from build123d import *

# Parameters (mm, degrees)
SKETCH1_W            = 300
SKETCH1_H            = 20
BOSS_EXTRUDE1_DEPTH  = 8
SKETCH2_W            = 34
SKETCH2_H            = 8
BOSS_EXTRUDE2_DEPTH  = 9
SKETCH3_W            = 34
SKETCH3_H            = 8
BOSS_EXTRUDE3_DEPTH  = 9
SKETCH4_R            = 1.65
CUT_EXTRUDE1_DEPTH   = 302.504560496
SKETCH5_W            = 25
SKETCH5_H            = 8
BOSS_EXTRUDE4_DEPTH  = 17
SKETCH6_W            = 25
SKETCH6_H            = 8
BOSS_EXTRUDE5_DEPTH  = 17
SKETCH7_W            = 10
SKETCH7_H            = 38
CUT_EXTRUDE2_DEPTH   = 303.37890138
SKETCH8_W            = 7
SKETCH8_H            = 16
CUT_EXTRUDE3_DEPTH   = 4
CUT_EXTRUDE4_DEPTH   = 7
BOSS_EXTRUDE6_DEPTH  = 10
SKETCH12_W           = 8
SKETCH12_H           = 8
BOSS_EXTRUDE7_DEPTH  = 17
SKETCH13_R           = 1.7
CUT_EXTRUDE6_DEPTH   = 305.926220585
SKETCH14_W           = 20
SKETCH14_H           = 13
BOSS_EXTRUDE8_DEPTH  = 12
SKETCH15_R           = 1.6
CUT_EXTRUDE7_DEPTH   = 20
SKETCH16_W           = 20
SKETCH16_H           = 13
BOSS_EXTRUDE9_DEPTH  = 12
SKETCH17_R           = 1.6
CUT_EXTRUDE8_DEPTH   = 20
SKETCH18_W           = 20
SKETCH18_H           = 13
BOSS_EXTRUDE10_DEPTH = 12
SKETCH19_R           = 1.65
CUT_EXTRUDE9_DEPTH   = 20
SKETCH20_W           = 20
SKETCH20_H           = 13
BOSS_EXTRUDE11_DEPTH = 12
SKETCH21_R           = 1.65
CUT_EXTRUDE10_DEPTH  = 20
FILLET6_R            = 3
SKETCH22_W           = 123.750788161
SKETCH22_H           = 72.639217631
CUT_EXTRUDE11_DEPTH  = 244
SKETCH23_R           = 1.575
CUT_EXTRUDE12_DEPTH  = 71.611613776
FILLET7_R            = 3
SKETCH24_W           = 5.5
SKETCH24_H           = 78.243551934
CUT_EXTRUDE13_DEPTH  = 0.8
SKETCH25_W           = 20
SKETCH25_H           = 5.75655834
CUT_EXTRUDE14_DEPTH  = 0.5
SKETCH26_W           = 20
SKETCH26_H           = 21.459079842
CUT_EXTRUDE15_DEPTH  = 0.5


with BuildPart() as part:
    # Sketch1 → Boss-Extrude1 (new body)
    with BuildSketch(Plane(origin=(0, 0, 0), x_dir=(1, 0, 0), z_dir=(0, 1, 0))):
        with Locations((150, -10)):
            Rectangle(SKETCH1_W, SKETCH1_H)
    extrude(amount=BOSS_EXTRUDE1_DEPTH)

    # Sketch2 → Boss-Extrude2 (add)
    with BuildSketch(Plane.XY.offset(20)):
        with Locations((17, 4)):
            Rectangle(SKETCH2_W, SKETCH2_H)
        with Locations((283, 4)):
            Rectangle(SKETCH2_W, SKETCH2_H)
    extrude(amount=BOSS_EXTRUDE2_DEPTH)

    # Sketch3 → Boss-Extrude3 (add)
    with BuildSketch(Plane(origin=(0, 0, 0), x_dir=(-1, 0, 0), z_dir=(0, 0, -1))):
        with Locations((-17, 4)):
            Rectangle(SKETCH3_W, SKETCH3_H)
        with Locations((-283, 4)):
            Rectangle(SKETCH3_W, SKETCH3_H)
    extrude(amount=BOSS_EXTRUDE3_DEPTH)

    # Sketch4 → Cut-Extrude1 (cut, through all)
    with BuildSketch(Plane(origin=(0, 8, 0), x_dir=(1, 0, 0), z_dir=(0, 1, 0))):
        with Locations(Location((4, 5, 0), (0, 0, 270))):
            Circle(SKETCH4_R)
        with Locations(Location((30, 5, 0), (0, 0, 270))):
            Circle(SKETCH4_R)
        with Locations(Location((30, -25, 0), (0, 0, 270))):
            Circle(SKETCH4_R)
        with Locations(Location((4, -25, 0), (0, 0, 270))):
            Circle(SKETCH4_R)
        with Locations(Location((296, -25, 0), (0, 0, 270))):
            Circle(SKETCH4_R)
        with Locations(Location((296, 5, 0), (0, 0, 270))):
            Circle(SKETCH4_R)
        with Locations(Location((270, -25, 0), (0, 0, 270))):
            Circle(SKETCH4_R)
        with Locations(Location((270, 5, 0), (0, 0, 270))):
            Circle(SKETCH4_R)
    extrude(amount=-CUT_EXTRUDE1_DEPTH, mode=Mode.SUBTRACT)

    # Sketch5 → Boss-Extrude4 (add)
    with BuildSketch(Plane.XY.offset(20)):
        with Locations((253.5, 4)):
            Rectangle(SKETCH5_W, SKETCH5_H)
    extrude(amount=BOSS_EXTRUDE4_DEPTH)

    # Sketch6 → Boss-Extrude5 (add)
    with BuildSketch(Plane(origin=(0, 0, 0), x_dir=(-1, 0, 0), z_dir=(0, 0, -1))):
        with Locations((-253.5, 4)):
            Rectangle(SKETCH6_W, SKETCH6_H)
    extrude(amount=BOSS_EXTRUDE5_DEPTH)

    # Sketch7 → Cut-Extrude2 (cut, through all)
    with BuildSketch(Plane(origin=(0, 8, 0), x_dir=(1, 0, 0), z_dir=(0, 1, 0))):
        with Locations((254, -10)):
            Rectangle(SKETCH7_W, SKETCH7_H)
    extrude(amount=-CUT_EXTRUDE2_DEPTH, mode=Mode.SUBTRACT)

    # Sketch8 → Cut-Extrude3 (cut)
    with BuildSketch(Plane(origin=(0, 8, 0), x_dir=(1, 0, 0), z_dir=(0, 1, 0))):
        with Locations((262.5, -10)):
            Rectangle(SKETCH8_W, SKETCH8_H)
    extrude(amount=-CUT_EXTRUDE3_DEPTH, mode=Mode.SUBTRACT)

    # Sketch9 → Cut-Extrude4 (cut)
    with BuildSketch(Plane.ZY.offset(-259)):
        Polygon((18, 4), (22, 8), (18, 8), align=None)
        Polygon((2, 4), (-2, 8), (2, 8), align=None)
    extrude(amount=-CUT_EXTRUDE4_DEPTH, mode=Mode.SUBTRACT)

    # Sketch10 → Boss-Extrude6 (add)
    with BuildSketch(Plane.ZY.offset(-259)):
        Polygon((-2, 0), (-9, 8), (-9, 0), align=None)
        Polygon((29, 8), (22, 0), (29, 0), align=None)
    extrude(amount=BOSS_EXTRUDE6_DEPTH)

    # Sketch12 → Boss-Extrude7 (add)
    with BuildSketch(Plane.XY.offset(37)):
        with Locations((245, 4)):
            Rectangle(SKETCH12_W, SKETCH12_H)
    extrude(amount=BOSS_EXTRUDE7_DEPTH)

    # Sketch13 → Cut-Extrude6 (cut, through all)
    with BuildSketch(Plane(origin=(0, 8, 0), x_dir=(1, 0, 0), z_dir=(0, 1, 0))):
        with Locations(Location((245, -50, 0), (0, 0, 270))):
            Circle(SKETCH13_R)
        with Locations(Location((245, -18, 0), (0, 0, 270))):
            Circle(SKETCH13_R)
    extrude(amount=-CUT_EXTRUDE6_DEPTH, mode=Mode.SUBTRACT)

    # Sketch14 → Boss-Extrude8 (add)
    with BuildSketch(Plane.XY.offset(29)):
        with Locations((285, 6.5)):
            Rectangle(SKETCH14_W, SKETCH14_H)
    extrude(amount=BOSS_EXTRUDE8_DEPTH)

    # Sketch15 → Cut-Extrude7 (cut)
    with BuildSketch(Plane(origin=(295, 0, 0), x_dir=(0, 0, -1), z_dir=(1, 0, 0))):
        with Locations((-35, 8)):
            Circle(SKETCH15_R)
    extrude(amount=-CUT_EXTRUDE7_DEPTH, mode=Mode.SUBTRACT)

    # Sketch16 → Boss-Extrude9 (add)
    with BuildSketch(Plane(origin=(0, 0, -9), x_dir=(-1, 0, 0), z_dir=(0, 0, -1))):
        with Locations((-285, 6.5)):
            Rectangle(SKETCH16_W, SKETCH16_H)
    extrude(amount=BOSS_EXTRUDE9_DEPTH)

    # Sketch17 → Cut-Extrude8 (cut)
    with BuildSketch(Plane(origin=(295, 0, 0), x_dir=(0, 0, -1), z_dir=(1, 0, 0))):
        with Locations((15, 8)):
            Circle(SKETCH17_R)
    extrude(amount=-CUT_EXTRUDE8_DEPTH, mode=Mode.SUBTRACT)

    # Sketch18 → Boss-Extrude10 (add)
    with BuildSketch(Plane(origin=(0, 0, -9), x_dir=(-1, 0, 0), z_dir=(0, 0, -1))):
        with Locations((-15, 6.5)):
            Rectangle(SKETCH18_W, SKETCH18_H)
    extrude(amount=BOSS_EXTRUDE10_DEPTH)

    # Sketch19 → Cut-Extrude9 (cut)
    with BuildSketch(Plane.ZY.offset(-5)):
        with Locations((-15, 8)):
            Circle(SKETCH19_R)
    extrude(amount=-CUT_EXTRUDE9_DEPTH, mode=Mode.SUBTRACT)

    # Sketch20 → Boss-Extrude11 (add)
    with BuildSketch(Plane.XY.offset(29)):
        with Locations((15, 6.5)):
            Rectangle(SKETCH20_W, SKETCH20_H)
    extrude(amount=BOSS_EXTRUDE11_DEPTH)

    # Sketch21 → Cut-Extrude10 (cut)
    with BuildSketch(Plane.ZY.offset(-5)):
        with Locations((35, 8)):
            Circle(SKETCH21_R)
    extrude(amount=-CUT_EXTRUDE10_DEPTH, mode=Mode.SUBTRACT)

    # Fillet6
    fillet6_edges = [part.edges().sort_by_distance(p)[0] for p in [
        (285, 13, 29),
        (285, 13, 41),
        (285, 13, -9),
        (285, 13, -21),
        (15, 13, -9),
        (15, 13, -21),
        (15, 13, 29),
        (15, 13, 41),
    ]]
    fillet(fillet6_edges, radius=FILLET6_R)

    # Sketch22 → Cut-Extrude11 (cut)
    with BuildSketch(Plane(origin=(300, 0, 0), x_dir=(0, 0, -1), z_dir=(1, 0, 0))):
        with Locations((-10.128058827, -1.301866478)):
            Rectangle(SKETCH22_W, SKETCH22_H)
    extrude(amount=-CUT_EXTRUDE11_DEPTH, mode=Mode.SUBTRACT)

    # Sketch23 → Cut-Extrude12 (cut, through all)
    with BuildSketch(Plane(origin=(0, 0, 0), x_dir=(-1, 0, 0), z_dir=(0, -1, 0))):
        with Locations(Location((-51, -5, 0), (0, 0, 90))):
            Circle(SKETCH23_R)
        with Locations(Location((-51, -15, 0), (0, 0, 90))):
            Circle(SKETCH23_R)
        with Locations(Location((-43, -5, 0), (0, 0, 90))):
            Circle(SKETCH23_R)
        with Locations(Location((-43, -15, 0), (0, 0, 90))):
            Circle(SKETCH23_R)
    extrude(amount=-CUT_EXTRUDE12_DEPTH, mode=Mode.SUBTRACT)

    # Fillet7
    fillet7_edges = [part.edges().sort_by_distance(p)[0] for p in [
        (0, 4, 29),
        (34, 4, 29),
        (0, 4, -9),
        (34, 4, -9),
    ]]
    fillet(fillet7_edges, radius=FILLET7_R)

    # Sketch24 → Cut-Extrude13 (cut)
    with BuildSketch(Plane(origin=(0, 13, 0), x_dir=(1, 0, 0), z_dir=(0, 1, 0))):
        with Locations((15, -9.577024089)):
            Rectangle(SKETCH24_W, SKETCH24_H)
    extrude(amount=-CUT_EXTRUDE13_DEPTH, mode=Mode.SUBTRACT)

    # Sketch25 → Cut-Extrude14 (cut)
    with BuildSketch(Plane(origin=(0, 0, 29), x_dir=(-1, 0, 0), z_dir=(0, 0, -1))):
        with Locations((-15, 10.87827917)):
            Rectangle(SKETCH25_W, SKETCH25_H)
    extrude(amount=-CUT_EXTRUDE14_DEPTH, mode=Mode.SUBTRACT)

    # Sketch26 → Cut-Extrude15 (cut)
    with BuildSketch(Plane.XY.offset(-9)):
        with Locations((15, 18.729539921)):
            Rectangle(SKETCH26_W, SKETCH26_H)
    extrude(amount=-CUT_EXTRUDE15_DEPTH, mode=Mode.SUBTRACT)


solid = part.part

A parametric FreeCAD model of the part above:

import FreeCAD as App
import Part
import Sketcher
Q = App.Units.Quantity


def edges_at(feature, points):
    """Names of the edges that pass closest to the given points."""
    edges = feature.Shape.Edges
    near = lambda p: min(range(len(edges)), key=lambda i: edges[i].distToShape(Part.Vertex(*p))[0])
    return sorted({f"Edge{near(p) + 1}" for p in points})


def add_polygon(sketch, points):
    """Adds a closed chain of lines whose ends are joined by coincident constraints."""
    first, n = sketch.GeometryCount, len(points)
    for a, b in zip(points, points[1:] + points[:1]):
        sketch.addGeometry(Part.LineSegment(App.Vector(*a, 0), App.Vector(*b, 0)), False)
    for i in range(n):
        sketch.addConstraint(Sketcher.Constraint("Coincident", first + i, 2, first + (i + 1) % n, 1))

doc = App.newDocument("Part")
body = doc.addObject("PartDesign::Body", "Body")

# Sketch on XZ plane
sketch1 = body.newObject("Sketcher::SketchObject", "Sketch")
sketch1.AttachmentSupport = (doc.getObject("XZ_Plane"), [""])
sketch1.MapMode = "FlatFace"
add_polygon(sketch1, [(0, 0), (0, 20), (300, 20), (300, 0)])  # lines 0-3
sketch1.addConstraint(Sketcher.Constraint("Vertical", 0))
sketch1.addConstraint(Sketcher.Constraint("Horizontal", 1))
sketch1.addConstraint(Sketcher.Constraint("Vertical", 2))
sketch1.addConstraint(Sketcher.Constraint("Horizontal", 3))
sketch1.addConstraint(Sketcher.Constraint("Coincident", 3, 2, -1, 1))
sketch1.addConstraint(Sketcher.Constraint("DistanceX", 1, 1, 1, 2, Q("300 mm")))
sketch1.addConstraint(Sketcher.Constraint("DistanceY", 0, 1, 0, 2, Q("20 mm")))
pad1 = body.newObject("PartDesign::Pad", "Pad")
pad1.Profile = sketch1
pad1.Length = 8
pad1.Reversed = True

# Sketch on XY plane
sketch2 = body.newObject("Sketcher::SketchObject", "Sketch001")
sketch2.AttachmentSupport = (doc.getObject("XY_Plane"), [""])
sketch2.MapMode = "FlatFace"
sketch2.AttachmentOffset = App.Placement(App.Vector(0, 0, 20), App.Rotation())
add_polygon(sketch2, [(0, 8), (0, 0), (34, 0), (34, 8)])  # lines 0-3
add_polygon(sketch2, [(266, 8), (266, 0), (300, 0), (300, 8)])  # lines 4-7
sketch2.addConstraint(Sketcher.Constraint("Vertical", 0))
sketch2.addConstraint(Sketcher.Constraint("Horizontal", 1))
sketch2.addConstraint(Sketcher.Constraint("Vertical", 2))
sketch2.addConstraint(Sketcher.Constraint("Horizontal", 3))
sketch2.addConstraint(Sketcher.Constraint("Vertical", 4))
sketch2.addConstraint(Sketcher.Constraint("Horizontal", 5))
sketch2.addConstraint(Sketcher.Constraint("Vertical", 6))
sketch2.addConstraint(Sketcher.Constraint("Horizontal", 7))
sketch2.addConstraint(Sketcher.Constraint("Coincident", 0, 2, -1, 1))
sketch2.addConstraint(Sketcher.Constraint("PointOnObject", 4, 2, -1))
sketch2.addConstraint(Sketcher.Constraint("Horizontal", 3, 2, 6, 2))
sketch2.addConstraint(Sketcher.Constraint("Equal", 3, 5))
sketch2.addConstraint(Sketcher.Constraint("DistanceX", 1, 1, 1, 2, Q("34 mm")))
sketch2.addConstraint(Sketcher.Constraint("DistanceY", 0, 2, 0, 1, Q("8 mm")))
sketch2.addConstraint(Sketcher.Constraint("DistanceX", -1, 1, 4, 2, Q("266 mm")))
pad2 = body.newObject("PartDesign::Pad", "Pad001")
pad2.Profile = sketch2
pad2.Length = 9

# Sketch on XY plane
sketch3 = body.newObject("Sketcher::SketchObject", "Sketch002")
sketch3.AttachmentSupport = (doc.getObject("XY_Plane"), [""])
sketch3.MapMode = "FlatFace"
add_polygon(sketch3, [(34, 8), (34, 0), (0, 0), (0, 8)])  # lines 0-3
add_polygon(sketch3, [(300, 8), (300, 0), (266, 0), (266, 8)])  # lines 4-7
sketch3.addConstraint(Sketcher.Constraint("Vertical", 0))
sketch3.addConstraint(Sketcher.Constraint("Horizontal", 1))
sketch3.addConstraint(Sketcher.Constraint("Vertical", 2))
sketch3.addConstraint(Sketcher.Constraint("Horizontal", 3))
sketch3.addConstraint(Sketcher.Constraint("Vertical", 4))
sketch3.addConstraint(Sketcher.Constraint("Horizontal", 5))
sketch3.addConstraint(Sketcher.Constraint("Vertical", 6))
sketch3.addConstraint(Sketcher.Constraint("Horizontal", 7))
sketch3.addConstraint(Sketcher.Constraint("Coincident", 1, 2, -1, 1))
sketch3.addConstraint(Sketcher.Constraint("PointOnObject", 4, 2, -1))
sketch3.addConstraint(Sketcher.Constraint("Horizontal", 3, 2, 6, 2))
sketch3.addConstraint(Sketcher.Constraint("Equal", 3, 5))
sketch3.addConstraint(Sketcher.Constraint("DistanceX", 1, 2, 1, 1, Q("34 mm")))
sketch3.addConstraint(Sketcher.Constraint("DistanceY", 0, 2, 0, 1, Q("8 mm")))
sketch3.addConstraint(Sketcher.Constraint("DistanceX", -1, 1, 4, 2, Q("300 mm")))
pad3 = body.newObject("PartDesign::Pad", "Pad002")
pad3.Profile = sketch3
pad3.Length = 9
pad3.Reversed = True

# Sketch on XZ plane
sketch4 = body.newObject("Sketcher::SketchObject", "Sketch003")
sketch4.AttachmentSupport = (doc.getObject("XZ_Plane"), [""])
sketch4.MapMode = "FlatFace"
sketch4.AttachmentOffset = App.Placement(App.Vector(0, 0, -8), App.Rotation())
sketch4.addGeometry(Part.Circle(App.Vector(4, -5, 0), App.Vector(0, 0, 1), 1.6), False)
sketch4.addGeometry(Part.Circle(App.Vector(30, -5, 0), App.Vector(0, 0, 1), 1.6), False)
sketch4.addGeometry(Part.Circle(App.Vector(30, 25, 0), App.Vector(0, 0, 1), 1.6), False)
sketch4.addGeometry(Part.Circle(App.Vector(4, 25, 0), App.Vector(0, 0, 1), 1.6), False)
sketch4.addGeometry(Part.Circle(App.Vector(296, 25, 0), App.Vector(0, 0, 1), 1.6), False)
sketch4.addGeometry(Part.Circle(App.Vector(296, -5, 0), App.Vector(0, 0, 1), 1.6), False)
sketch4.addGeometry(Part.Circle(App.Vector(270, 25, 0), App.Vector(0, 0, 1), 1.6), False)
sketch4.addGeometry(Part.Circle(App.Vector(270, -5, 0), App.Vector(0, 0, 1), 1.6), False)
sketch4.addConstraint(Sketcher.Constraint("Equal", 0, 1))
sketch4.addConstraint(Sketcher.Constraint("Equal", 1, 2))
sketch4.addConstraint(Sketcher.Constraint("Equal", 2, 3))
sketch4.addConstraint(Sketcher.Constraint("Equal", 3, 4))
sketch4.addConstraint(Sketcher.Constraint("Equal", 4, 5))
sketch4.addConstraint(Sketcher.Constraint("Equal", 5, 6))
sketch4.addConstraint(Sketcher.Constraint("Equal", 6, 7))
sketch4.addConstraint(Sketcher.Constraint("Horizontal", 0, 3, 1, 3))
sketch4.addConstraint(Sketcher.Constraint("Horizontal", 2, 3, 3, 3))
sketch4.addConstraint(Sketcher.Constraint("Horizontal", 3, 3, 4, 3))
sketch4.addConstraint(Sketcher.Constraint("Horizontal", 1, 3, 5, 3))
sketch4.addConstraint(Sketcher.Constraint("Horizontal", 4, 3, 6, 3))
sketch4.addConstraint(Sketcher.Constraint("Horizontal", 5, 3, 7, 3))
sketch4.addConstraint(Sketcher.Constraint("Vertical", 1, 3, 2, 3))
sketch4.addConstraint(Sketcher.Constraint("Vertical", 0, 3, 3, 3))
sketch4.addConstraint(Sketcher.Constraint("Vertical", 4, 3, 5, 3))
sketch4.addConstraint(Sketcher.Constraint("Vertical", 6, 3, 7, 3))
sketch4.addConstraint(Sketcher.Constraint("Diameter", 0, Q("3.3 mm")))
sketch4.addConstraint(Sketcher.Constraint("DistanceX", -1, 1, 0, 3, Q("4 mm")))
sketch4.addConstraint(Sketcher.Constraint("DistanceY", 0, 3, -1, 1, Q("5 mm")))
sketch4.addConstraint(Sketcher.Constraint("DistanceX", -1, 1, 1, 3, Q("30 mm")))
sketch4.addConstraint(Sketcher.Constraint("DistanceY", -1, 1, 2, 3, Q("25 mm")))
sketch4.addConstraint(Sketcher.Constraint("DistanceX", -1, 1, 4, 3, Q("296 mm")))
sketch4.addConstraint(Sketcher.Constraint("DistanceX", -1, 1, 6, 3, Q("270 mm")))
pocket1 = body.newObject("PartDesign::Pocket", "Pocket")
pocket1.Profile = sketch4
pocket1.Type = "ThroughAll"
pocket1.Reversed = True

# Sketch on XY plane
sketch5 = body.newObject("Sketcher::SketchObject", "Sketch004")
sketch5.AttachmentSupport = (doc.getObject("XY_Plane"), [""])
sketch5.MapMode = "FlatFace"
sketch5.AttachmentOffset = App.Placement(App.Vector(0, 0, 20), App.Rotation())
add_polygon(sketch5, [(241, 8), (241, 0), (266, 0), (266, 8)])  # lines 0-3
sketch5.addConstraint(Sketcher.Constraint("Vertical", 0))
sketch5.addConstraint(Sketcher.Constraint("Horizontal", 1))
sketch5.addConstraint(Sketcher.Constraint("Vertical", 2))
sketch5.addConstraint(Sketcher.Constraint("Horizontal", 3))
sketch5.addConstraint(Sketcher.Constraint("PointOnObject", 0, 2, -1))
sketch5.addConstraint(Sketcher.Constraint("DistanceX", 1, 1, 1, 2, Q("25 mm")))
sketch5.addConstraint(Sketcher.Constraint("DistanceY", 0, 2, 0, 1, Q("8 mm")))
sketch5.addConstraint(Sketcher.Constraint("DistanceX", -1, 1, 0, 2, Q("241 mm")))
pad4 = body.newObject("PartDesign::Pad", "Pad003")
pad4.Profile = sketch5
pad4.Length = 17

# Sketch on XY plane
sketch6 = body.newObject("Sketcher::SketchObject", "Sketch005")
sketch6.AttachmentSupport = (doc.getObject("XY_Plane"), [""])
sketch6.MapMode = "FlatFace"
add_polygon(sketch6, [(266, 8), (266, 0), (241, 0), (241, 8)])  # lines 0-3
sketch6.addConstraint(Sketcher.Constraint("Vertical", 0))
sketch6.addConstraint(Sketcher.Constraint("Horizontal", 1))
sketch6.addConstraint(Sketcher.Constraint("Vertical", 2))
sketch6.addConstraint(Sketcher.Constraint("Horizontal", 3))
sketch6.addConstraint(Sketcher.Constraint("PointOnObject", 0, 2, -1))
sketch6.addConstraint(Sketcher.Constraint("DistanceX", 1, 2, 1, 1, Q("25 mm")))
sketch6.addConstraint(Sketcher.Constraint("DistanceY", 0, 2, 0, 1, Q("8 mm")))
sketch6.addConstraint(Sketcher.Constraint("DistanceX", -1, 1, 0, 2, Q("266 mm")))
pad5 = body.newObject("PartDesign::Pad", "Pad004")
pad5.Profile = sketch6
pad5.Length = 17
pad5.Reversed = True

# Sketch on XZ plane
sketch7 = body.newObject("Sketcher::SketchObject", "Sketch006")
sketch7.AttachmentSupport = (doc.getObject("XZ_Plane"), [""])
sketch7.MapMode = "FlatFace"
sketch7.AttachmentOffset = App.Placement(App.Vector(0, 0, -8), App.Rotation())
add_polygon(sketch7, [(249, -9), (249, 29), (259, 29), (259, -9)])  # lines 0-3
sketch7.addConstraint(Sketcher.Constraint("Vertical", 0))
sketch7.addConstraint(Sketcher.Constraint("Horizontal", 1))
sketch7.addConstraint(Sketcher.Constraint("Vertical", 2))
sketch7.addConstraint(Sketcher.Constraint("Horizontal", 3))
sketch7.addConstraint(Sketcher.Constraint("DistanceX", 1, 1, 1, 2, Q("10 mm")))
sketch7.addConstraint(Sketcher.Constraint("DistanceY", 0, 1, 0, 2, Q("38 mm")))
sketch7.addConstraint(Sketcher.Constraint("DistanceX", -1, 1, 0, 2, Q("249 mm")))
sketch7.addConstraint(Sketcher.Constraint("DistanceY", -1, 1, 0, 2, Q("29 mm")))
pocket2 = body.newObject("PartDesign::Pocket", "Pocket001")
pocket2.Profile = sketch7
pocket2.Type = "ThroughAll"
pocket2.Reversed = True

# Sketch on XZ plane
sketch8 = body.newObject("Sketcher::SketchObject", "Sketch007")
sketch8.AttachmentSupport = (doc.getObject("XZ_Plane"), [""])
sketch8.MapMode = "FlatFace"
sketch8.AttachmentOffset = App.Placement(App.Vector(0, 0, -8), App.Rotation())
add_polygon(sketch8, [(259, 2), (259, 18), (266, 18), (266, 2)])  # lines 0-3
sketch8.addConstraint(Sketcher.Constraint("Vertical", 0))
sketch8.addConstraint(Sketcher.Constraint("Horizontal", 1))
sketch8.addConstraint(Sketcher.Constraint("Vertical", 2))
sketch8.addConstraint(Sketcher.Constraint("Horizontal", 3))
sketch8.addConstraint(Sketcher.Constraint("DistanceX", 1, 1, 1, 2, Q("7 mm")))
sketch8.addConstraint(Sketcher.Constraint("DistanceY", 0, 1, 0, 2, Q("16 mm")))
sketch8.addConstraint(Sketcher.Constraint("DistanceX", -1, 1, 0, 2, Q("259 mm")))
sketch8.addConstraint(Sketcher.Constraint("DistanceY", -1, 1, 0, 2, Q("18 mm")))
pocket3 = body.newObject("PartDesign::Pocket", "Pocket002")
pocket3.Profile = sketch8
pocket3.Length = 4
pocket3.Reversed = True

# Sketch on YZ plane
sketch9 = body.newObject("Sketcher::SketchObject", "Sketch008")
sketch9.AttachmentSupport = (doc.getObject("YZ_Plane"), [""])
sketch9.MapMode = "FlatFace"
sketch9.AttachmentOffset = App.Placement(App.Vector(0, 0, 259), App.Rotation())
add_polygon(sketch9, [(4, 18), (8, 22), (8, 18)])  # lines 0-2
add_polygon(sketch9, [(8, -2), (4, 2), (8, 2)])  # lines 3-5
sketch9.addConstraint(Sketcher.Constraint("Vertical", 1))
sketch9.addConstraint(Sketcher.Constraint("Horizontal", 2))
sketch9.addConstraint(Sketcher.Constraint("Horizontal", 4))
sketch9.addConstraint(Sketcher.Constraint("Vertical", 5))
sketch9.addConstraint(Sketcher.Constraint("Perpendicular", 0, 3))
sketch9.addConstraint(Sketcher.Constraint("Vertical", 2, 2, 3, 2))
sketch9.addConstraint(Sketcher.Constraint("Vertical", 1, 2, 4, 2))
sketch9.addConstraint(Sketcher.Constraint("Equal", 4, 1))
sketch9.addConstraint(Sketcher.Constraint("DistanceX", 2, 2, 2, 1, Q("4 mm")))
sketch9.addConstraint(Sketcher.Constraint("DistanceX", -1, 1, 0, 2, Q("8 mm")))
sketch9.addConstraint(Sketcher.Constraint("DistanceY", -1, 1, 0, 2, Q("22 mm")))
sketch9.addConstraint(Sketcher.Constraint("DistanceY", -1, 1, 3, 2, Q("2 mm")))
pocket4 = body.newObject("PartDesign::Pocket", "Pocket003")
pocket4.Profile = sketch9
pocket4.Length = 7
pocket4.Reversed = True

# Sketch on YZ plane
sketch10 = body.newObject("Sketcher::SketchObject", "Sketch009")
sketch10.AttachmentSupport = (doc.getObject("YZ_Plane"), [""])
sketch10.MapMode = "FlatFace"
sketch10.AttachmentOffset = App.Placement(App.Vector(0, 0, 259), App.Rotation())
add_polygon(sketch10, [(0, -2), (8, -9), (0, -9)])  # lines 0-2
add_polygon(sketch10, [(8, 29), (0, 22), (0, 29)])  # lines 3-5
sketch10.addConstraint(Sketcher.Constraint("Horizontal", 1))
sketch10.addConstraint(Sketcher.Constraint("Vertical", 2))
sketch10.addConstraint(Sketcher.Constraint("Vertical", 4))
sketch10.addConstraint(Sketcher.Constraint("Horizontal", 5))
sketch10.addConstraint(Sketcher.Constraint("PointOnObject", 1, 2, -2))
sketch10.addConstraint(Sketcher.Constraint("PointOnObject", 3, 2, -2))
sketch10.addConstraint(Sketcher.Constraint("Vertical", 0, 2, 5, 2))
sketch10.addConstraint(Sketcher.Constraint("Equal", 2, 4))
sketch10.addConstraint(Sketcher.Constraint("DistanceX", 1, 2, 1, 1, Q("8 mm")))
sketch10.addConstraint(Sketcher.Constraint("DistanceY", 2, 1, 2, 2, Q("7 mm")))
sketch10.addConstraint(Sketcher.Constraint("DistanceY", 0, 2, -1, 1, Q("9 mm")))
sketch10.addConstraint(Sketcher.Constraint("DistanceY", -1, 1, 3, 2, Q("22 mm")))
pad6 = body.newObject("PartDesign::Pad", "Pad005")
pad6.Profile = sketch10
pad6.Length = 10
pad6.Reversed = True

# Sketch on XY plane
sketch11 = body.newObject("Sketcher::SketchObject", "Sketch010")
sketch11.AttachmentSupport = (doc.getObject("XY_Plane"), [""])
sketch11.MapMode = "FlatFace"
sketch11.AttachmentOffset = App.Placement(App.Vector(0, 0, 37), App.Rotation())
add_polygon(sketch11, [(241, 8), (241, 0), (249, 0), (249, 8)])  # lines 0-3
sketch11.addConstraint(Sketcher.Constraint("Vertical", 0))
sketch11.addConstraint(Sketcher.Constraint("Horizontal", 1))
sketch11.addConstraint(Sketcher.Constraint("Vertical", 2))
sketch11.addConstraint(Sketcher.Constraint("Horizontal", 3))
sketch11.addConstraint(Sketcher.Constraint("PointOnObject", 0, 2, -1))
sketch11.addConstraint(Sketcher.Constraint("Equal", 3, 0))
sketch11.addConstraint(Sketcher.Constraint("DistanceX", 1, 1, 1, 2, Q("8 mm")))
sketch11.addConstraint(Sketcher.Constraint("DistanceX", -1, 1, 0, 2, Q("241 mm")))
pad7 = body.newObject("PartDesign::Pad", "Pad006")
pad7.Profile = sketch11
pad7.Length = 17

# Sketch on XZ plane
sketch12 = body.newObject("Sketcher::SketchObject", "Sketch011")
sketch12.AttachmentSupport = (doc.getObject("XZ_Plane"), [""])
sketch12.MapMode = "FlatFace"
sketch12.AttachmentOffset = App.Placement(App.Vector(0, 0, -8), App.Rotation())
sketch12.addGeometry(Part.Circle(App.Vector(245, 50, 0), App.Vector(0, 0, 1), 1.7), False)
sketch12.addGeometry(Part.Circle(App.Vector(245, 18, 0), App.Vector(0, 0, 1), 1.7), False)
sketch12.addConstraint(Sketcher.Constraint("Equal", 0, 1))
sketch12.addConstraint(Sketcher.Constraint("Vertical", 0, 3, 1, 3))
sketch12.addConstraint(Sketcher.Constraint("Diameter", 0, Q("3.4 mm")))
sketch12.addConstraint(Sketcher.Constraint("DistanceX", -1, 1, 0, 3, Q("245 mm")))
sketch12.addConstraint(Sketcher.Constraint("DistanceY", -1, 1, 0, 3, Q("50 mm")))
sketch12.addConstraint(Sketcher.Constraint("DistanceY", -1, 1, 1, 3, Q("18 mm")))
pocket5 = body.newObject("PartDesign::Pocket", "Pocket004")
pocket5.Profile = sketch12
pocket5.Type = "ThroughAll"
pocket5.Reversed = True

# Sketch on XY plane
sketch13 = body.newObject("Sketcher::SketchObject", "Sketch012")
sketch13.AttachmentSupport = (doc.getObject("XY_Plane"), [""])
sketch13.MapMode = "FlatFace"
sketch13.AttachmentOffset = App.Placement(App.Vector(0, 0, 29), App.Rotation())
add_polygon(sketch13, [(275, 13), (275, 0), (295, 0), (295, 13)])  # lines 0-3
sketch13.addConstraint(Sketcher.Constraint("Vertical", 0))
sketch13.addConstraint(Sketcher.Constraint("Horizontal", 1))
sketch13.addConstraint(Sketcher.Constraint("Vertical", 2))
sketch13.addConstraint(Sketcher.Constraint("Horizontal", 3))
sketch13.addConstraint(Sketcher.Constraint("PointOnObject", 0, 2, -1))
sketch13.addConstraint(Sketcher.Constraint("DistanceX", 1, 1, 1, 2, Q("20 mm")))
sketch13.addConstraint(Sketcher.Constraint("DistanceY", 0, 2, 0, 1, Q("13 mm")))
sketch13.addConstraint(Sketcher.Constraint("DistanceX", -1, 1, 0, 2, Q("275 mm")))
pad8 = body.newObject("PartDesign::Pad", "Pad007")
pad8.Profile = sketch13
pad8.Length = 12

# Sketch on YZ plane
sketch14 = body.newObject("Sketcher::SketchObject", "Sketch013")
sketch14.AttachmentSupport = (doc.getObject("YZ_Plane"), [""])
sketch14.MapMode = "FlatFace"
sketch14.AttachmentOffset = App.Placement(App.Vector(0, 0, 295), App.Rotation())
sketch14.addGeometry(Part.Circle(App.Vector(8, 35, 0), App.Vector(0, 0, 1), 1.6), False)
sketch14.addConstraint(Sketcher.Constraint("Diameter", 0, Q("3.2 mm")))
sketch14.addConstraint(Sketcher.Constraint("DistanceX", -1, 1, 0, 3, Q("8 mm")))
sketch14.addConstraint(Sketcher.Constraint("DistanceY", -1, 1, 0, 3, Q("35 mm")))
pocket6 = body.newObject("PartDesign::Pocket", "Pocket005")
pocket6.Profile = sketch14
pocket6.Length = 20

# Sketch on XY plane
sketch15 = body.newObject("Sketcher::SketchObject", "Sketch014")
sketch15.AttachmentSupport = (doc.getObject("XY_Plane"), [""])
sketch15.MapMode = "FlatFace"
sketch15.AttachmentOffset = App.Placement(App.Vector(0, 0, -9), App.Rotation())
add_polygon(sketch15, [(295, 13), (295, 0), (275, 0), (275, 13)])  # lines 0-3
sketch15.addConstraint(Sketcher.Constraint("Vertical", 0))
sketch15.addConstraint(Sketcher.Constraint("Horizontal", 1))
sketch15.addConstraint(Sketcher.Constraint("Vertical", 2))
sketch15.addConstraint(Sketcher.Constraint("Horizontal", 3))
sketch15.addConstraint(Sketcher.Constraint("PointOnObject", 0, 2, -1))
sketch15.addConstraint(Sketcher.Constraint("DistanceX", 1, 2, 1, 1, Q("20 mm")))
sketch15.addConstraint(Sketcher.Constraint("DistanceY", 0, 2, 0, 1, Q("13 mm")))
sketch15.addConstraint(Sketcher.Constraint("DistanceX", -1, 1, 0, 2, Q("295 mm")))
pad9 = body.newObject("PartDesign::Pad", "Pad008")
pad9.Profile = sketch15
pad9.Length = 12
pad9.Reversed = True

# Sketch on YZ plane
sketch16 = body.newObject("Sketcher::SketchObject", "Sketch015")
sketch16.AttachmentSupport = (doc.getObject("YZ_Plane"), [""])
sketch16.MapMode = "FlatFace"
sketch16.AttachmentOffset = App.Placement(App.Vector(0, 0, 295), App.Rotation())
sketch16.addGeometry(Part.Circle(App.Vector(8, -15, 0), App.Vector(0, 0, 1), 1.6), False)
sketch16.addConstraint(Sketcher.Constraint("Diameter", 0, Q("3.2 mm")))
sketch16.addConstraint(Sketcher.Constraint("DistanceX", -1, 1, 0, 3, Q("8 mm")))
sketch16.addConstraint(Sketcher.Constraint("DistanceY", 0, 3, -1, 1, Q("15 mm")))
pocket7 = body.newObject("PartDesign::Pocket", "Pocket006")
pocket7.Profile = sketch16
pocket7.Length = 20

# Sketch on XY plane
sketch17 = body.newObject("Sketcher::SketchObject", "Sketch016")
sketch17.AttachmentSupport = (doc.getObject("XY_Plane"), [""])
sketch17.MapMode = "FlatFace"
sketch17.AttachmentOffset = App.Placement(App.Vector(0, 0, -9), App.Rotation())
add_polygon(sketch17, [(25, 13), (25, 0), (5, 0), (5, 13)])  # lines 0-3
sketch17.addConstraint(Sketcher.Constraint("Vertical", 0))
sketch17.addConstraint(Sketcher.Constraint("Horizontal", 1))
sketch17.addConstraint(Sketcher.Constraint("Vertical", 2))
sketch17.addConstraint(Sketcher.Constraint("Horizontal", 3))
sketch17.addConstraint(Sketcher.Constraint("PointOnObject", 0, 2, -1))
sketch17.addConstraint(Sketcher.Constraint("DistanceX", 1, 2, 1, 1, Q("20 mm")))
sketch17.addConstraint(Sketcher.Constraint("DistanceY", 0, 2, 0, 1, Q("13 mm")))
sketch17.addConstraint(Sketcher.Constraint("DistanceX", -1, 1, 0, 2, Q("25 mm")))
pad10 = body.newObject("PartDesign::Pad", "Pad009")
pad10.Profile = sketch17
pad10.Length = 12
pad10.Reversed = True

# Sketch on YZ plane
sketch18 = body.newObject("Sketcher::SketchObject", "Sketch017")
sketch18.AttachmentSupport = (doc.getObject("YZ_Plane"), [""])
sketch18.MapMode = "FlatFace"
sketch18.AttachmentOffset = App.Placement(App.Vector(0, 0, 5), App.Rotation())
sketch18.addGeometry(Part.Circle(App.Vector(8, -15, 0), App.Vector(0, 0, 1), 1.6), False)
sketch18.addConstraint(Sketcher.Constraint("Diameter", 0, Q("3.3 mm")))
sketch18.addConstraint(Sketcher.Constraint("DistanceX", -1, 1, 0, 3, Q("8 mm")))
sketch18.addConstraint(Sketcher.Constraint("DistanceY", 0, 3, -1, 1, Q("15 mm")))
pocket8 = body.newObject("PartDesign::Pocket", "Pocket007")
pocket8.Profile = sketch18
pocket8.Length = 20
pocket8.Reversed = True

# Sketch on XY plane
sketch19 = body.newObject("Sketcher::SketchObject", "Sketch018")
sketch19.AttachmentSupport = (doc.getObject("XY_Plane"), [""])
sketch19.MapMode = "FlatFace"
sketch19.AttachmentOffset = App.Placement(App.Vector(0, 0, 29), App.Rotation())
add_polygon(sketch19, [(5, 13), (5, 0), (25, 0), (25, 13)])  # lines 0-3
sketch19.addConstraint(Sketcher.Constraint("Vertical", 0))
sketch19.addConstraint(Sketcher.Constraint("Horizontal", 1))
sketch19.addConstraint(Sketcher.Constraint("Vertical", 2))
sketch19.addConstraint(Sketcher.Constraint("Horizontal", 3))
sketch19.addConstraint(Sketcher.Constraint("PointOnObject", 0, 2, -1))
sketch19.addConstraint(Sketcher.Constraint("DistanceX", 1, 1, 1, 2, Q("20 mm")))
sketch19.addConstraint(Sketcher.Constraint("DistanceY", 0, 2, 0, 1, Q("13 mm")))
sketch19.addConstraint(Sketcher.Constraint("DistanceX", -1, 1, 0, 2, Q("5 mm")))
pad11 = body.newObject("PartDesign::Pad", "Pad010")
pad11.Profile = sketch19
pad11.Length = 12

# Sketch on YZ plane
sketch20 = body.newObject("Sketcher::SketchObject", "Sketch019")
sketch20.AttachmentSupport = (doc.getObject("YZ_Plane"), [""])
sketch20.MapMode = "FlatFace"
sketch20.AttachmentOffset = App.Placement(App.Vector(0, 0, 5), App.Rotation())
sketch20.addGeometry(Part.Circle(App.Vector(8, 35, 0), App.Vector(0, 0, 1), 1.6), False)
sketch20.addConstraint(Sketcher.Constraint("Diameter", 0, Q("3.3 mm")))
sketch20.addConstraint(Sketcher.Constraint("DistanceX", -1, 1, 0, 3, Q("8 mm")))
sketch20.addConstraint(Sketcher.Constraint("DistanceY", -1, 1, 0, 3, Q("35 mm")))
pocket9 = body.newObject("PartDesign::Pocket", "Pocket008")
pocket9.Profile = sketch20
pocket9.Length = 20
pocket9.Reversed = True
doc.recompute()

fillet = body.newObject("PartDesign::Fillet", "Fillet")
fillet.Base = (pocket9, edges_at(pocket9, [
    (285, 13, 29),
    (285, 13, 41),
    (285, 13, -9),
    (285, 13, -21),
    (15, 13, -9),
    (15, 13, -21),
    (15, 13, 29),
    (15, 13, 41),
]))
fillet.Radius = 3

# Sketch on YZ plane
sketch21 = body.newObject("Sketcher::SketchObject", "Sketch020")
sketch21.AttachmentSupport = (doc.getObject("YZ_Plane"), [""])
sketch21.MapMode = "FlatFace"
sketch21.AttachmentOffset = App.Placement(App.Vector(0, 0, 300), App.Rotation())
add_polygon(sketch21, [(35, 72), (-38, 72), (-38, -52), (35, -52)])  # lines 0-3
sketch21.addConstraint(Sketcher.Constraint("Horizontal", 0))
sketch21.addConstraint(Sketcher.Constraint("Vertical", 1))
sketch21.addConstraint(Sketcher.Constraint("Horizontal", 2))
sketch21.addConstraint(Sketcher.Constraint("Vertical", 3))
sketch21.addConstraint(Sketcher.Constraint("DistanceY", 1, 2, 1, 1, Q("123.750788 mm")))
sketch21.addConstraint(Sketcher.Constraint("DistanceX", 0, 2, 0, 1, Q("72.639218 mm")))
sketch21.addConstraint(Sketcher.Constraint("DistanceX", 0, 2, -1, 1, Q("37.621475 mm")))
sketch21.addConstraint(Sketcher.Constraint("DistanceY", -1, 1, 0, 2, Q("72.003453 mm")))
pocket10 = body.newObject("PartDesign::Pocket", "Pocket009")
pocket10.Profile = sketch21
pocket10.Length = 244

# Sketch on XZ plane
sketch22 = body.newObject("Sketcher::SketchObject", "Sketch021")
sketch22.AttachmentSupport = (doc.getObject("XZ_Plane"), [""])
sketch22.MapMode = "FlatFace"
sketch22.addGeometry(Part.Circle(App.Vector(51, 5, 0), App.Vector(0, 0, 1), 1.6), False)
sketch22.addGeometry(Part.Circle(App.Vector(51, 15, 0), App.Vector(0, 0, 1), 1.6), False)
sketch22.addGeometry(Part.Circle(App.Vector(43, 5, 0), App.Vector(0, 0, 1), 1.6), False)
sketch22.addGeometry(Part.Circle(App.Vector(43, 15, 0), App.Vector(0, 0, 1), 1.6), False)
sketch22.addConstraint(Sketcher.Constraint("Equal", 0, 1))
sketch22.addConstraint(Sketcher.Constraint("Equal", 1, 2))
sketch22.addConstraint(Sketcher.Constraint("Equal", 2, 3))
sketch22.addConstraint(Sketcher.Constraint("Horizontal", 0, 3, 2, 3))
sketch22.addConstraint(Sketcher.Constraint("Horizontal", 1, 3, 3, 3))
sketch22.addConstraint(Sketcher.Constraint("Vertical", 0, 3, 1, 3))
sketch22.addConstraint(Sketcher.Constraint("Vertical", 2, 3, 3, 3))
sketch22.addConstraint(Sketcher.Constraint("Diameter", 0, Q("3.15 mm")))
sketch22.addConstraint(Sketcher.Constraint("DistanceX", -1, 1, 0, 3, Q("51 mm")))
sketch22.addConstraint(Sketcher.Constraint("DistanceY", -1, 1, 0, 3, Q("5 mm")))
sketch22.addConstraint(Sketcher.Constraint("DistanceY", -1, 1, 1, 3, Q("15 mm")))
sketch22.addConstraint(Sketcher.Constraint("DistanceX", -1, 1, 2, 3, Q("43 mm")))
pocket11 = body.newObject("PartDesign::Pocket", "Pocket010")
pocket11.Profile = sketch22
pocket11.Type = "ThroughAll"
doc.recompute()

fillet2 = body.newObject("PartDesign::Fillet", "Fillet001")
fillet2.Base = (pocket11, edges_at(pocket11, [
    (0, 4, 29),
    (34, 4, 29),
    (0, 4, -9),
    (34, 4, -9),
]))
fillet2.Radius = 3

# Sketch on XZ plane
sketch23 = body.newObject("Sketcher::SketchObject", "Sketch022")
sketch23.AttachmentSupport = (doc.getObject("XZ_Plane"), [""])
sketch23.MapMode = "FlatFace"
sketch23.AttachmentOffset = App.Placement(App.Vector(0, 0, -13), App.Rotation())
add_polygon(sketch23, [(12, -30), (12, 49), (18, 49), (18, -30)])  # lines 0-3
sketch23.addConstraint(Sketcher.Constraint("Vertical", 0))
sketch23.addConstraint(Sketcher.Constraint("Horizontal", 1))
sketch23.addConstraint(Sketcher.Constraint("Vertical", 2))
sketch23.addConstraint(Sketcher.Constraint("Horizontal", 3))
sketch23.addConstraint(Sketcher.Constraint("DistanceX", 1, 1, 1, 2, Q("5.5 mm")))
sketch23.addConstraint(Sketcher.Constraint("DistanceX", -1, 1, 0, 2, Q("12.25 mm")))
sketch23.addConstraint(Sketcher.Constraint("DistanceY", 0, 1, 0, 2, Q("78.243552 mm")))
sketch23.addConstraint(Sketcher.Constraint("DistanceY", -1, 1, 0, 2, Q("48.6988 mm")))
pocket12 = body.newObject("PartDesign::Pocket", "Pocket011")
pocket12.Profile = sketch23
pocket12.Length = 0.8
pocket12.Reversed = True

# Sketch on XY plane
sketch24 = body.newObject("Sketcher::SketchObject", "Sketch023")
sketch24.AttachmentSupport = (doc.getObject("XY_Plane"), [""])
sketch24.MapMode = "FlatFace"
sketch24.AttachmentOffset = App.Placement(App.Vector(0, 0, 29), App.Rotation())
add_polygon(sketch24, [(25, 14), (25, 8), (5, 8), (5, 14)])  # lines 0-3
sketch24.addConstraint(Sketcher.Constraint("Vertical", 0))
sketch24.addConstraint(Sketcher.Constraint("Horizontal", 1))
sketch24.addConstraint(Sketcher.Constraint("Vertical", 2))
sketch24.addConstraint(Sketcher.Constraint("Horizontal", 3))
sketch24.addConstraint(Sketcher.Constraint("DistanceX", 1, 2, 1, 1, Q("20 mm")))
sketch24.addConstraint(Sketcher.Constraint("DistanceX", -1, 1, 0, 2, Q("25 mm")))
sketch24.addConstraint(Sketcher.Constraint("DistanceY", -1, 1, 0, 2, Q("8 mm")))
sketch24.addConstraint(Sketcher.Constraint("DistanceY", 0, 2, 0, 1, Q("5.756558 mm")))
pocket13 = body.newObject("PartDesign::Pocket", "Pocket012")
pocket13.Profile = sketch24
pocket13.Length = 0.5
pocket13.Reversed = True

# Sketch on XY plane
sketch25 = body.newObject("Sketcher::SketchObject", "Sketch024")
sketch25.AttachmentSupport = (doc.getObject("XY_Plane"), [""])
sketch25.MapMode = "FlatFace"
sketch25.AttachmentOffset = App.Placement(App.Vector(0, 0, -9), App.Rotation())
add_polygon(sketch25, [(5, 29), (5, 8), (25, 8), (25, 29)])  # lines 0-3
sketch25.addConstraint(Sketcher.Constraint("Vertical", 0))
sketch25.addConstraint(Sketcher.Constraint("Horizontal", 1))
sketch25.addConstraint(Sketcher.Constraint("Vertical", 2))
sketch25.addConstraint(Sketcher.Constraint("Horizontal", 3))
sketch25.addConstraint(Sketcher.Constraint("DistanceX", 1, 1, 1, 2, Q("20 mm")))
sketch25.addConstraint(Sketcher.Constraint("DistanceX", -1, 1, 0, 2, Q("5 mm")))
sketch25.addConstraint(Sketcher.Constraint("DistanceY", -1, 1, 0, 2, Q("8 mm")))
sketch25.addConstraint(Sketcher.Constraint("DistanceY", 0, 2, 0, 1, Q("21.45908 mm")))
pocket14 = body.newObject("PartDesign::Pocket", "Pocket013")
pocket14.Profile = sketch25
pocket14.Length = 0.5

doc.recompute()
